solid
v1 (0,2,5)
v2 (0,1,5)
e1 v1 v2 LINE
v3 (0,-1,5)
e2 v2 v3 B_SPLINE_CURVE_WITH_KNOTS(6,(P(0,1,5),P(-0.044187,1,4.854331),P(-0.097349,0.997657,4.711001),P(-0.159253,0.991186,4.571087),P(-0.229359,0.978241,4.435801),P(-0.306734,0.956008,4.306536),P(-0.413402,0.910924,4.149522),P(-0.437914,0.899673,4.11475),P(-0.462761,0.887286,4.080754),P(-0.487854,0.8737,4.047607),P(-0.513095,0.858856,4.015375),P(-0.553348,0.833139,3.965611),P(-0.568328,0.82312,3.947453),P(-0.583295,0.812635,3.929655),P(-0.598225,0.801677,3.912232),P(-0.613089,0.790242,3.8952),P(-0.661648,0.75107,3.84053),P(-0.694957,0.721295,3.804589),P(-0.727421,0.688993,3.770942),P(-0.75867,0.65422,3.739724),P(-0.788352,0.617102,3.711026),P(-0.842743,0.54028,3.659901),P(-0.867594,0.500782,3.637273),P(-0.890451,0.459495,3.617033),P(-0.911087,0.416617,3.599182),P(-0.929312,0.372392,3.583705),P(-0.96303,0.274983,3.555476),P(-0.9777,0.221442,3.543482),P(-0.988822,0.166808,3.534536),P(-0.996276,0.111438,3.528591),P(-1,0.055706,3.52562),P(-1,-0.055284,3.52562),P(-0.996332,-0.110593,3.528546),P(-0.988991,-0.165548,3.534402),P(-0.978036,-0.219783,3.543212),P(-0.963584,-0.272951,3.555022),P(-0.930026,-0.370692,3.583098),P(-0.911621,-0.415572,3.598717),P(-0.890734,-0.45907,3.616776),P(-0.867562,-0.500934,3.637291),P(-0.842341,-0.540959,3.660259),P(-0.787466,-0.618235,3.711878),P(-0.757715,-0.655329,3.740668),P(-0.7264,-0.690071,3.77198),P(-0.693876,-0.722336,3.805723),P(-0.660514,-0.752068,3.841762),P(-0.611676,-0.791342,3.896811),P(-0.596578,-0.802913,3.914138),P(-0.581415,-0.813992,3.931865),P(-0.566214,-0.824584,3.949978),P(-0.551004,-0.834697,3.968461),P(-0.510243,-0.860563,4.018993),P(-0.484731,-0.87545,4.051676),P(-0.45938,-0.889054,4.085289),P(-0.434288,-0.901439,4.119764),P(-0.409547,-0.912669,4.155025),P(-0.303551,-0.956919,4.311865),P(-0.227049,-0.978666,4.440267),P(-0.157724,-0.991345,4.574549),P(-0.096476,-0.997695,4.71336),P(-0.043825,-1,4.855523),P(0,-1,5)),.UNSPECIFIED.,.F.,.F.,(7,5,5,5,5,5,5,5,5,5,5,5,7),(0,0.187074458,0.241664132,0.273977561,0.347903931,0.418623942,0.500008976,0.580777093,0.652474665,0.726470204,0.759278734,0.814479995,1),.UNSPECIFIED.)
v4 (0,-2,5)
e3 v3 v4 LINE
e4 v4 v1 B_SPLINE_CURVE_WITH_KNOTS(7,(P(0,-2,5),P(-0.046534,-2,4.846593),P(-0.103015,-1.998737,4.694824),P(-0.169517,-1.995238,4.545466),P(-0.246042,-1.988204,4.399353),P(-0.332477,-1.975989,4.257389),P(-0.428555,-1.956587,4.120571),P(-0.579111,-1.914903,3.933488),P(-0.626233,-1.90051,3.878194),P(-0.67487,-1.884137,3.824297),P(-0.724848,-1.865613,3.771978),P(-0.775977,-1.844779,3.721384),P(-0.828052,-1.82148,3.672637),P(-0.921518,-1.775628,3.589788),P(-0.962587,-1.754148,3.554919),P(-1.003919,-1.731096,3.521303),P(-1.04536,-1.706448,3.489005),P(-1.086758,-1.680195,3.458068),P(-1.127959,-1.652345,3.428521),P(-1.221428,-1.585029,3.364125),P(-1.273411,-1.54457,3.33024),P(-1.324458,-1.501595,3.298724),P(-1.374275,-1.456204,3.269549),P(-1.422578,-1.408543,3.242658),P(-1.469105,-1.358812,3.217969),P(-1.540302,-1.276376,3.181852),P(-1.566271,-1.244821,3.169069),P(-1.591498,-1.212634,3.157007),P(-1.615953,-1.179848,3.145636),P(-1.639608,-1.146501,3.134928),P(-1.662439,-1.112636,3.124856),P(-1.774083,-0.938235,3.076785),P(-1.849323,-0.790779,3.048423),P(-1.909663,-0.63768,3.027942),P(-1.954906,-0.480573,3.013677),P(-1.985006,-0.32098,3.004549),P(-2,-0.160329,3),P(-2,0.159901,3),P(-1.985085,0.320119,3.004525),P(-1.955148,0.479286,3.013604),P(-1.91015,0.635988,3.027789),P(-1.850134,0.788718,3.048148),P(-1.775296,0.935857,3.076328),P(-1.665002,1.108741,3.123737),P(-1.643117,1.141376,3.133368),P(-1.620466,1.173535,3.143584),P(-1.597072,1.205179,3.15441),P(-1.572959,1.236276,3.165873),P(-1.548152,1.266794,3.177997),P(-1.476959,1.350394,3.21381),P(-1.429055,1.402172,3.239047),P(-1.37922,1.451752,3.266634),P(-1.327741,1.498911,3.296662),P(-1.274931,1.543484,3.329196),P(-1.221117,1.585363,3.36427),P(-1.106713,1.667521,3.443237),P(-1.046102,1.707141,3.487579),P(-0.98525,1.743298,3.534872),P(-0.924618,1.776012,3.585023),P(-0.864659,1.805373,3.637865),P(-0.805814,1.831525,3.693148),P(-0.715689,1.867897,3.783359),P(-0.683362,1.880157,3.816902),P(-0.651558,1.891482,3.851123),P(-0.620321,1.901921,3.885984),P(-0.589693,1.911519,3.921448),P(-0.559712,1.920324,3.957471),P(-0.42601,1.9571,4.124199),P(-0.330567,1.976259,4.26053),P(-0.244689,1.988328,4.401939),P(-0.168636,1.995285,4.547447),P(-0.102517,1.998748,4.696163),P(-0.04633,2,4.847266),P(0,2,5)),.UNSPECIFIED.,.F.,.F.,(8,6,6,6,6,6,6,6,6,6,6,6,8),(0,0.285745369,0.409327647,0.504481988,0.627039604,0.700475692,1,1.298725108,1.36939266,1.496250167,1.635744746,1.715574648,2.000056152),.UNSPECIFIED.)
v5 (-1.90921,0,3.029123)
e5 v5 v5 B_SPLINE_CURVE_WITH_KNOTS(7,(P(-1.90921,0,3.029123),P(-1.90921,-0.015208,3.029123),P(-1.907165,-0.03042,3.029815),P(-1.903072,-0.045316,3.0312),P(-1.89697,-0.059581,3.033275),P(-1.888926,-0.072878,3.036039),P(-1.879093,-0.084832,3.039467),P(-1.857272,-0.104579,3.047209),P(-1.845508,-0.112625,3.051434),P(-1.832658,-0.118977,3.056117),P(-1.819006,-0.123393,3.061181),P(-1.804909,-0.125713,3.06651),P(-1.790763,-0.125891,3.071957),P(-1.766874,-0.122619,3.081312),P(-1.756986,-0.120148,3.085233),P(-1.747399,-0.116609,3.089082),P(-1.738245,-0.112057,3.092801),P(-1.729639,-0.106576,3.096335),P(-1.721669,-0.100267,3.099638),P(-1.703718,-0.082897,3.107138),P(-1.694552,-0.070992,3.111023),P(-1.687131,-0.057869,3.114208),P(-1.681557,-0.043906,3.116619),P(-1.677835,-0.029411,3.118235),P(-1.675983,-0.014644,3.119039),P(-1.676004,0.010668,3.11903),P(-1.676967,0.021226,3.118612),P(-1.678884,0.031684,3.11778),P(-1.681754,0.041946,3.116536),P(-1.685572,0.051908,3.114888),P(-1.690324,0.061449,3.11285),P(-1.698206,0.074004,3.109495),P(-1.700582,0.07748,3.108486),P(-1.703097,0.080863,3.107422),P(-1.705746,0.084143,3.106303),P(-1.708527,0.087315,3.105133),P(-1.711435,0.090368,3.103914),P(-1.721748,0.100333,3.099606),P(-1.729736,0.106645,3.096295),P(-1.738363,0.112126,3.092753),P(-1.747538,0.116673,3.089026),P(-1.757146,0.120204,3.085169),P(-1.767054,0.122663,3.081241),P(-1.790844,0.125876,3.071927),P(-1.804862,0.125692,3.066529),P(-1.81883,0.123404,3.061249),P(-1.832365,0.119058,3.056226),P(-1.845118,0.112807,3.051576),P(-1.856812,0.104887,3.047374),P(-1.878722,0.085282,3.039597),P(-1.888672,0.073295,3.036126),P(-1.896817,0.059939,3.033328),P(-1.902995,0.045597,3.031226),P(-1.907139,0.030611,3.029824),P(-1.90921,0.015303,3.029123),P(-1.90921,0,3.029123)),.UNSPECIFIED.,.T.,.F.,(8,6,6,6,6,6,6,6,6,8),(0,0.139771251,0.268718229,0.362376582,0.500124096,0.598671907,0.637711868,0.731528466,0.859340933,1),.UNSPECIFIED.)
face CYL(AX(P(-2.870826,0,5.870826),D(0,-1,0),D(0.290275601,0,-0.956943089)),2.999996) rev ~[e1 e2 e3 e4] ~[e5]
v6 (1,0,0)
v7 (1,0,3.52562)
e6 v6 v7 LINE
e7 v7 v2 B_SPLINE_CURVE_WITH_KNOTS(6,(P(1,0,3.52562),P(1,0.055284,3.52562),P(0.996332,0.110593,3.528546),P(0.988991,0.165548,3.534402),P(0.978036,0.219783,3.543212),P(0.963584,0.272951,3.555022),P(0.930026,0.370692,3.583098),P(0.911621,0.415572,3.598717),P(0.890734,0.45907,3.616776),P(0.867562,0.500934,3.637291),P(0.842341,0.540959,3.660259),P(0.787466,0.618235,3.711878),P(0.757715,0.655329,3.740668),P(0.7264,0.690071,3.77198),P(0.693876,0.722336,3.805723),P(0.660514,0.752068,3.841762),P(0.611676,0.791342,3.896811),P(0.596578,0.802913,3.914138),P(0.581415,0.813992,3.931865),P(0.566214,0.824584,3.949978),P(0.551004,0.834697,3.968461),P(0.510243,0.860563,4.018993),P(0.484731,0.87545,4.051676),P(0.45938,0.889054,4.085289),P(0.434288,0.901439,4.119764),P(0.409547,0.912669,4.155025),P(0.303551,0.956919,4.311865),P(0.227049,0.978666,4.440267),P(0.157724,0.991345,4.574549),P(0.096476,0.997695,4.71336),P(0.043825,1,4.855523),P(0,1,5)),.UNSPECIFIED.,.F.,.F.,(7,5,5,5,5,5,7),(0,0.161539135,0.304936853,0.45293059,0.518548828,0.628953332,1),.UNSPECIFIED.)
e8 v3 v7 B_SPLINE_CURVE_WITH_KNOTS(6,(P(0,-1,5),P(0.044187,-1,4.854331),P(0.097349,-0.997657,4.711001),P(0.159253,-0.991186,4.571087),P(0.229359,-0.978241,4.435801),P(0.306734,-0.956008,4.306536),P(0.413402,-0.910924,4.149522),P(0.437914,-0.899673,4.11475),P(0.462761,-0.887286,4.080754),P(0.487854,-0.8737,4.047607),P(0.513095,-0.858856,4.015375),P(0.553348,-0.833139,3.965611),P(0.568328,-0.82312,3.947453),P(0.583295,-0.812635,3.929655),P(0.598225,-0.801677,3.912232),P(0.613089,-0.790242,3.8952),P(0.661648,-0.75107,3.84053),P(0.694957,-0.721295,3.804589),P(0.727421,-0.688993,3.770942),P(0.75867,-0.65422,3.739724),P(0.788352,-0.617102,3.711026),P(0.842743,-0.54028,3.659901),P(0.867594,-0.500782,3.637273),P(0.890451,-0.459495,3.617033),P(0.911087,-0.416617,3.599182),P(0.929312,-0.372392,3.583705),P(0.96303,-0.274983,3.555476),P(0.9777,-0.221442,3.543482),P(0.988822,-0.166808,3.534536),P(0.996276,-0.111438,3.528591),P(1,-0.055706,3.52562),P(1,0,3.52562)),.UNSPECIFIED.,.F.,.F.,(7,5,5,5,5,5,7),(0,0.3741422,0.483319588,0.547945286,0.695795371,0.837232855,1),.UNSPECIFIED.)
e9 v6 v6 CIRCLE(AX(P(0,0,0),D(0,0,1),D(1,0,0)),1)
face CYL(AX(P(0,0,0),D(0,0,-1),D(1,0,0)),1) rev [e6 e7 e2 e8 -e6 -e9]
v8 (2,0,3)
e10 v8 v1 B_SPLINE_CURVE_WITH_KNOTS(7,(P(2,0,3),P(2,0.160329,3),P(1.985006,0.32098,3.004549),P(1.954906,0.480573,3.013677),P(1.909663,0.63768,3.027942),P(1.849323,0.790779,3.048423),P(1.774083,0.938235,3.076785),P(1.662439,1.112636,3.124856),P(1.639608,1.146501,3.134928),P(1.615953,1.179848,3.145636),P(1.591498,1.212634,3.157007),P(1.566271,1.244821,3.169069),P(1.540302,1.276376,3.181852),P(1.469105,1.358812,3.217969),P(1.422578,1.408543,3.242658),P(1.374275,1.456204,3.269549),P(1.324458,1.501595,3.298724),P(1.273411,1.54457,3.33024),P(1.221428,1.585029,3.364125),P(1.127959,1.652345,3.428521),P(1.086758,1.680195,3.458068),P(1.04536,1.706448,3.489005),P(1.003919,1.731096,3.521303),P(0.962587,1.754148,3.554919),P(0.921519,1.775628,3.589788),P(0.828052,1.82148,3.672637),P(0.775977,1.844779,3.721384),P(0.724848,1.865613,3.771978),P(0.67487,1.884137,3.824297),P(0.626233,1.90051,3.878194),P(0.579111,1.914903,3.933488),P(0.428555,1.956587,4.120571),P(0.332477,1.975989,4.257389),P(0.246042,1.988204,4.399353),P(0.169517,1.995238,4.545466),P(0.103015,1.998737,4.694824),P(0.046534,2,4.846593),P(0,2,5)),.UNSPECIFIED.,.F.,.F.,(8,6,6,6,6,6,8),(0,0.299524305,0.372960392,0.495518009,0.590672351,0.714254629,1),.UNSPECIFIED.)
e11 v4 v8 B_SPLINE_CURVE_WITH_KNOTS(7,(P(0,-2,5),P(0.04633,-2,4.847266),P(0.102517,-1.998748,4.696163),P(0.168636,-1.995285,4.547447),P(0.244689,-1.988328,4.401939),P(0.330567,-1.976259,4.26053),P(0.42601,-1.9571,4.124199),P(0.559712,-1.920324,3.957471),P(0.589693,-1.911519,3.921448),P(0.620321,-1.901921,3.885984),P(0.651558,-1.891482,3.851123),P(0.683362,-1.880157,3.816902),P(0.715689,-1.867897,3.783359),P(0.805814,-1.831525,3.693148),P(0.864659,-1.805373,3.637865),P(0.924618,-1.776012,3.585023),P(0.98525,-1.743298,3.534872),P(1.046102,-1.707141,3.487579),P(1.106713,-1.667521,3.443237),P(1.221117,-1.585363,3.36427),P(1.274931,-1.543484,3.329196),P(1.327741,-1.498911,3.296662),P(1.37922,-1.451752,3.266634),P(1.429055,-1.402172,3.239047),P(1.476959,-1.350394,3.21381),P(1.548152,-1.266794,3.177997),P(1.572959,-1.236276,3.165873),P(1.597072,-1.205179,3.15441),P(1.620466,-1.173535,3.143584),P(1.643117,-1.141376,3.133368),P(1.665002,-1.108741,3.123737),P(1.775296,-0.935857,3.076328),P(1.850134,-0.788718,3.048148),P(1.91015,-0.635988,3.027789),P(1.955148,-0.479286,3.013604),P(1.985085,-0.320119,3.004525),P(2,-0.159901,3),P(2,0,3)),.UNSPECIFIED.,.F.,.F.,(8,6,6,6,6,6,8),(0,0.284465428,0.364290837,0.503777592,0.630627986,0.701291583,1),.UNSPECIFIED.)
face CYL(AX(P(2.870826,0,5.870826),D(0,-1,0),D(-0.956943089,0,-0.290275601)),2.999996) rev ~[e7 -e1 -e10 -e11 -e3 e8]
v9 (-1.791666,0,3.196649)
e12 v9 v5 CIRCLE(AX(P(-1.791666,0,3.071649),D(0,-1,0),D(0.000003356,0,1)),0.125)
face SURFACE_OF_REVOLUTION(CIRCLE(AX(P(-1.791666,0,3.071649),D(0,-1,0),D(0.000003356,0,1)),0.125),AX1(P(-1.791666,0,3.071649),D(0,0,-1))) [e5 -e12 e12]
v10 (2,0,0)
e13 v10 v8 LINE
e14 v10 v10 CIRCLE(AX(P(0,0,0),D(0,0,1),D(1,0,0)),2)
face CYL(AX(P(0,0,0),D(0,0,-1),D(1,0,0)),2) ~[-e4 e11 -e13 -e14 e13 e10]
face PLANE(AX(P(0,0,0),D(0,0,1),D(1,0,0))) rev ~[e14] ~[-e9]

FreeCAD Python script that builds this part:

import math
import FreeCAD as App
import Part
import Sketcher

doc = App.newDocument("Part")
body = doc.addObject("PartDesign::Body", "Body")

# Sketch on XY plane
sketch1 = body.newObject("Sketcher::SketchObject", "Sketch")
sketch1.AttachmentSupport = (doc.getObject("XY_Plane"), [""])
sketch1.MapMode = "FlatFace"
sketch1.addGeometry([
    Part.Circle(App.Vector(0, 0, 0), App.Vector(0, 0, 1), 2),
    Part.Circle(App.Vector(0, 0, 0), App.Vector(0, 0, 1), 1),
], False)
sketch1.addConstraint([
    Sketcher.Constraint("Coincident", 0, 3, -1, 1),
    Sketcher.Constraint("Coincident", 1, 3, -1, 1),
    Sketcher.Constraint("Diameter", 0, 4.0),
    Sketcher.Constraint("Diameter", 1, 2.0),
])
pad1 = body.newObject("PartDesign::Pad", "Pad")
pad1.Profile = sketch1
pad1.Length = 5

# Sketch on XZ plane
sketch2 = body.newObject("Sketcher::SketchObject", "Sketch001")
sketch2.AttachmentSupport = (doc.getObject("XZ_Plane"), [""])
sketch2.MapMode = "FlatFace"
sketch2.addGeometry([
    Part.LineSegment(App.Vector(-2, 5, 0), App.Vector(-2, 3, 0)),  # 0
    Part.ArcOfCircle(Part.Circle(App.Vector(-2.9, 5.9, 0), App.Vector(0, 0, 1), 3), math.radians(-73), math.radians(-17)),  # 1
    Part.LineSegment(App.Vector(0, 5, 0), App.Vector(-2, 5, 0)),  # 2
    Part.LineSegment(App.Vector(2, 5, 0), App.Vector(0, 5, 0)),  # 3
    Part.ArcOfCircle(Part.Circle(App.Vector(2.9, 5.9, 0), App.Vector(0, 0, 1), 3), math.radians(-163), math.radians(-107)),  # 4
    Part.LineSegment(App.Vector(2, 3, 0), App.Vector(2, 5, 0)),  # 5
], False)
sketch2.addConstraint([
    Sketcher.Constraint("Coincident", 0, 2, 1, 1),
    Sketcher.Constraint("Coincident", 1, 2, 2, 1),
    Sketcher.Constraint("Coincident", 2, 2, 0, 1),
    Sketcher.Constraint("Coincident", 3, 2, 4, 1),
    Sketcher.Constraint("Coincident", 4, 2, 5, 1),
    Sketcher.Constraint("Coincident", 5, 2, 3, 1),
    Sketcher.Constraint("Vertical", 0),
    Sketcher.Constraint("Horizontal", 2),
    Sketcher.Constraint("Horizontal", 3),
    Sketcher.Constraint("Vertical", 5),
    Sketcher.Constraint("Coincident", 3, 2, 1, 2),
    Sketcher.Constraint("Equal", 1, 4),
    Sketcher.Constraint("Symmetric", 1, 3, 4, 3, -2),
    Sketcher.Constraint("Horizontal", 0, 2, 4, 2),
    Sketcher.Constraint("Equal", 3, 0),
    Sketcher.Constraint("DistanceX", 2, 2, 2, 1, 2.0),
    Sketcher.Constraint("DistanceY", -1, 1, 0, 2, 3.0),
    Sketcher.Constraint("Radius", 1, 2.999996),
])
pocket1 = body.newObject("PartDesign::Pocket", "Pocket")
pocket1.Profile = sketch2
pocket1.Length = 25
pocket1.Midplane = True

# Sketch on XZ plane
sketch3 = body.newObject("Sketcher::SketchObject", "Sketch002")
sketch3.AttachmentSupport = (doc.getObject("XZ_Plane"), [""])
sketch3.MapMode = "FlatFace"
sketch3.addGeometry([
    Part.ArcOfCircle(Part.Circle(App.Vector(-1.79, 3.07, 0), App.Vector(0, 0, 1), 0.12), math.radians(-160), math.radians(-90)),
    Part.LineSegment(App.Vector(-1.79, 2.95, 0), App.Vector(-1.79, 3.2, 0)),
    Part.ArcOfCircle(Part.Circle(App.Vector(-1.79, 3.07, 0), App.Vector(0, 0, 1), 0.12), math.radians(90), math.radians(200)),
], False)
sketch3.addGeometry(Part.LineSegment(App.Vector(-1.79, 3.2, 0), App.Vector(-1.79, 2.95, 0)), True)  # axis
sketch3.addConstraint([
    Sketcher.Constraint("Coincident", 0, 2, 1, 1),
    Sketcher.Constraint("Coincident", 1, 2, 2, 1),
    Sketcher.Constraint("Coincident", 2, 2, 0, 1),
    Sketcher.Constraint("Vertical", 1),
    Sketcher.Constraint("Vertical", 3),
    Sketcher.Constraint("Coincident", 2, 3, 0, 3),
    Sketcher.Constraint("Coincident", 3, 1, 1, 2),
    Sketcher.Constraint("Vertical", 2, 3, 0, 2),
    Sketcher.Constraint("Equal", 1, 3),
    Sketcher.Constraint("Radius", 0, 0.124999),
    Sketcher.Constraint("DistanceY", -1, 1, 0, 3, 3.071648),
    Sketcher.Constraint("DistanceX", 2, 2, -1, 1, 1.90921),
    Sketcher.Constraint("DistanceX", 0, 3, -1, 1, 1.791667),
])
revolution = body.newObject("PartDesign::Revolution", "Revolution")
revolution.Profile = sketch3
revolution.ReferenceAxis = (sketch3, ["Axis0"])
revolution.Angle = 360

doc.recompute()
